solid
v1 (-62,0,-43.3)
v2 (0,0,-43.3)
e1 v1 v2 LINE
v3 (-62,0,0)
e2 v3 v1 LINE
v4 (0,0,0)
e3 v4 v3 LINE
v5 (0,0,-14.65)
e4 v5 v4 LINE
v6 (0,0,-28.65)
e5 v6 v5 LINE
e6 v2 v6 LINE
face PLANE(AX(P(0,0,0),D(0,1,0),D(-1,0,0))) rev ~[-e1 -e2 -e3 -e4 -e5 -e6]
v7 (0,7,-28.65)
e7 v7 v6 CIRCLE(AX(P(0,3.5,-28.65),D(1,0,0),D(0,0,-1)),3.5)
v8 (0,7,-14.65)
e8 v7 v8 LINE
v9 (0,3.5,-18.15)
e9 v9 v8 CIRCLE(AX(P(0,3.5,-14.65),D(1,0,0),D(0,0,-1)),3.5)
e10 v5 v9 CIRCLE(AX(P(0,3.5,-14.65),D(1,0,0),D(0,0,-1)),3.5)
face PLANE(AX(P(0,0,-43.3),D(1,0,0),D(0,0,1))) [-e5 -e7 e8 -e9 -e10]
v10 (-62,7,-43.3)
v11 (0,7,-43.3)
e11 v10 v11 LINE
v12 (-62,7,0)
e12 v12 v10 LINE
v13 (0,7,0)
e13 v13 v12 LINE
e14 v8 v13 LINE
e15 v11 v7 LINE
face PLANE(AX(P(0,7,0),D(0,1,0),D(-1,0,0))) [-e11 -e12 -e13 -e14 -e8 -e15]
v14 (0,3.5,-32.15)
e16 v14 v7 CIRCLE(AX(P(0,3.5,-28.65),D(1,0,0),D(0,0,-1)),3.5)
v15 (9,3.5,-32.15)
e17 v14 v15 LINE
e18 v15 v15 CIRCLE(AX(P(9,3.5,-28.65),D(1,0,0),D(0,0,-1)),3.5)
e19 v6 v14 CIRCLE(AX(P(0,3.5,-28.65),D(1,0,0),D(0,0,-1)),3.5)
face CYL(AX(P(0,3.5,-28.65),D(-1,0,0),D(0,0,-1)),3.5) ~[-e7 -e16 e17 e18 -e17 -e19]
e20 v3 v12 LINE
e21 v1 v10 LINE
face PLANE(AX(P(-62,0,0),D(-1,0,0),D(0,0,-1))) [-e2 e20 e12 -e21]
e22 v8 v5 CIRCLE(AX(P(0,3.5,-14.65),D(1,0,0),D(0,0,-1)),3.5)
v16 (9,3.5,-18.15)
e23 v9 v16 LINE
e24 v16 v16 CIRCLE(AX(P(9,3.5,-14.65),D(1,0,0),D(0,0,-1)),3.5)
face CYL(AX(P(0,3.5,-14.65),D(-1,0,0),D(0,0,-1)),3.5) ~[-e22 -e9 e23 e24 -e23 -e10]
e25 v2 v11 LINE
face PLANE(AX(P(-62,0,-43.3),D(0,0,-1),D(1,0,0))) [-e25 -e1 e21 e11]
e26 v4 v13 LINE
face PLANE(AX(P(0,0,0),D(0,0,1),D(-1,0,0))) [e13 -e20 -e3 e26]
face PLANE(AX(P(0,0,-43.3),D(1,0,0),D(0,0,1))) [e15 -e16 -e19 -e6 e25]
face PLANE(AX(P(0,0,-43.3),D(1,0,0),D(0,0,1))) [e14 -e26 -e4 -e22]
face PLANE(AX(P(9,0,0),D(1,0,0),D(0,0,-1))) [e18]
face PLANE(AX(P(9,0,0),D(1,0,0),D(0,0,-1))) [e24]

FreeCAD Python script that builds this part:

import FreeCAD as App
import Part
import Sketcher
Q = App.Units.Quantity


def add_polygon(sketch, points):
    """Adds a closed chain of lines whose ends are joined by coincident constraints."""
    first, n = sketch.GeometryCount, len(points)
    for a, b in zip(points, points[1:] + points[:1]):
        sketch.addGeometry(Part.LineSegment(App.Vector(*a, 0), App.Vector(*b, 0)), False)
    for i in range(n):
        sketch.addConstraint(Sketcher.Constraint("Coincident", first + i, 2, first + (i + 1) % n, 1))

doc = App.newDocument("Part")
body = doc.addObject("PartDesign::Body", "Body")

# Sketch on XZ plane
sketch1 = doc.addObject("Sketcher::SketchObject", "Sketch")
body.addObject(sketch1)
sketch1.AttachmentSupport = (doc.XZ_Plane, [""])
sketch1.MapMode = "FlatFace"
add_polygon(sketch1, [(-62, 0), (0, 0), (0, -43.3), (-62, -43.3)])  # lines 0-3
sketch1.addConstraint([
    Sketcher.Constraint("Horizontal", 0),
    Sketcher.Constraint("Vertical", 1),
    Sketcher.Constraint("Horizontal", 2),
    Sketcher.Constraint("Vertical", 3),
    Sketcher.Constraint("Coincident", 0, 2, -1, 1),
    Sketcher.Constraint("DistanceX", 0, 1, 0, 2, Q("62 mm")),
    Sketcher.Constraint("DistanceY", 1, 2, 1, 1, Q("43.3 mm")),
])
pad1 = doc.addObject("PartDesign::Pad", "Pad")
body.addObject(pad1)
pad1.Profile = sketch1
pad1.Length = 7
pad1.Reversed = True

# Sketch on YZ plane
sketch2 = doc.addObject("Sketcher::SketchObject", "Sketch001")
body.addObject(sketch2)
sketch2.AttachmentSupport = (doc.YZ_Plane, [""])
sketch2.MapMode = "FlatFace"
sketch2.addGeometry([
    Part.Circle(App.Vector(3.5, -14.65, 0), App.Vector(0, 0, 1), 3.5),
    Part.Circle(App.Vector(3.5, -28.65, 0), App.Vector(0, 0, 1), 3.5),
], False)
sketch2.addConstraint([
    Sketcher.Constraint("Equal", 0, 1),
    Sketcher.Constraint("Vertical", 0, 3, 1, 3),
    Sketcher.Constraint("Diameter", 0, Q("7 mm")),
    Sketcher.Constraint("DistanceY", 1, 3, 0, 3, Q("14 mm")),
    Sketcher.Constraint("DistanceX", -1, 1, 0, 3, Q("3.5 mm")),
    Sketcher.Constraint("DistanceY", 0, 3, -1, 1, Q("14.65 mm")),
])
pad2 = doc.addObject("PartDesign::Pad", "Pad001")
body.addObject(pad2)
pad2.Profile = sketch2
pad2.Length = 9

doc.recompute()
